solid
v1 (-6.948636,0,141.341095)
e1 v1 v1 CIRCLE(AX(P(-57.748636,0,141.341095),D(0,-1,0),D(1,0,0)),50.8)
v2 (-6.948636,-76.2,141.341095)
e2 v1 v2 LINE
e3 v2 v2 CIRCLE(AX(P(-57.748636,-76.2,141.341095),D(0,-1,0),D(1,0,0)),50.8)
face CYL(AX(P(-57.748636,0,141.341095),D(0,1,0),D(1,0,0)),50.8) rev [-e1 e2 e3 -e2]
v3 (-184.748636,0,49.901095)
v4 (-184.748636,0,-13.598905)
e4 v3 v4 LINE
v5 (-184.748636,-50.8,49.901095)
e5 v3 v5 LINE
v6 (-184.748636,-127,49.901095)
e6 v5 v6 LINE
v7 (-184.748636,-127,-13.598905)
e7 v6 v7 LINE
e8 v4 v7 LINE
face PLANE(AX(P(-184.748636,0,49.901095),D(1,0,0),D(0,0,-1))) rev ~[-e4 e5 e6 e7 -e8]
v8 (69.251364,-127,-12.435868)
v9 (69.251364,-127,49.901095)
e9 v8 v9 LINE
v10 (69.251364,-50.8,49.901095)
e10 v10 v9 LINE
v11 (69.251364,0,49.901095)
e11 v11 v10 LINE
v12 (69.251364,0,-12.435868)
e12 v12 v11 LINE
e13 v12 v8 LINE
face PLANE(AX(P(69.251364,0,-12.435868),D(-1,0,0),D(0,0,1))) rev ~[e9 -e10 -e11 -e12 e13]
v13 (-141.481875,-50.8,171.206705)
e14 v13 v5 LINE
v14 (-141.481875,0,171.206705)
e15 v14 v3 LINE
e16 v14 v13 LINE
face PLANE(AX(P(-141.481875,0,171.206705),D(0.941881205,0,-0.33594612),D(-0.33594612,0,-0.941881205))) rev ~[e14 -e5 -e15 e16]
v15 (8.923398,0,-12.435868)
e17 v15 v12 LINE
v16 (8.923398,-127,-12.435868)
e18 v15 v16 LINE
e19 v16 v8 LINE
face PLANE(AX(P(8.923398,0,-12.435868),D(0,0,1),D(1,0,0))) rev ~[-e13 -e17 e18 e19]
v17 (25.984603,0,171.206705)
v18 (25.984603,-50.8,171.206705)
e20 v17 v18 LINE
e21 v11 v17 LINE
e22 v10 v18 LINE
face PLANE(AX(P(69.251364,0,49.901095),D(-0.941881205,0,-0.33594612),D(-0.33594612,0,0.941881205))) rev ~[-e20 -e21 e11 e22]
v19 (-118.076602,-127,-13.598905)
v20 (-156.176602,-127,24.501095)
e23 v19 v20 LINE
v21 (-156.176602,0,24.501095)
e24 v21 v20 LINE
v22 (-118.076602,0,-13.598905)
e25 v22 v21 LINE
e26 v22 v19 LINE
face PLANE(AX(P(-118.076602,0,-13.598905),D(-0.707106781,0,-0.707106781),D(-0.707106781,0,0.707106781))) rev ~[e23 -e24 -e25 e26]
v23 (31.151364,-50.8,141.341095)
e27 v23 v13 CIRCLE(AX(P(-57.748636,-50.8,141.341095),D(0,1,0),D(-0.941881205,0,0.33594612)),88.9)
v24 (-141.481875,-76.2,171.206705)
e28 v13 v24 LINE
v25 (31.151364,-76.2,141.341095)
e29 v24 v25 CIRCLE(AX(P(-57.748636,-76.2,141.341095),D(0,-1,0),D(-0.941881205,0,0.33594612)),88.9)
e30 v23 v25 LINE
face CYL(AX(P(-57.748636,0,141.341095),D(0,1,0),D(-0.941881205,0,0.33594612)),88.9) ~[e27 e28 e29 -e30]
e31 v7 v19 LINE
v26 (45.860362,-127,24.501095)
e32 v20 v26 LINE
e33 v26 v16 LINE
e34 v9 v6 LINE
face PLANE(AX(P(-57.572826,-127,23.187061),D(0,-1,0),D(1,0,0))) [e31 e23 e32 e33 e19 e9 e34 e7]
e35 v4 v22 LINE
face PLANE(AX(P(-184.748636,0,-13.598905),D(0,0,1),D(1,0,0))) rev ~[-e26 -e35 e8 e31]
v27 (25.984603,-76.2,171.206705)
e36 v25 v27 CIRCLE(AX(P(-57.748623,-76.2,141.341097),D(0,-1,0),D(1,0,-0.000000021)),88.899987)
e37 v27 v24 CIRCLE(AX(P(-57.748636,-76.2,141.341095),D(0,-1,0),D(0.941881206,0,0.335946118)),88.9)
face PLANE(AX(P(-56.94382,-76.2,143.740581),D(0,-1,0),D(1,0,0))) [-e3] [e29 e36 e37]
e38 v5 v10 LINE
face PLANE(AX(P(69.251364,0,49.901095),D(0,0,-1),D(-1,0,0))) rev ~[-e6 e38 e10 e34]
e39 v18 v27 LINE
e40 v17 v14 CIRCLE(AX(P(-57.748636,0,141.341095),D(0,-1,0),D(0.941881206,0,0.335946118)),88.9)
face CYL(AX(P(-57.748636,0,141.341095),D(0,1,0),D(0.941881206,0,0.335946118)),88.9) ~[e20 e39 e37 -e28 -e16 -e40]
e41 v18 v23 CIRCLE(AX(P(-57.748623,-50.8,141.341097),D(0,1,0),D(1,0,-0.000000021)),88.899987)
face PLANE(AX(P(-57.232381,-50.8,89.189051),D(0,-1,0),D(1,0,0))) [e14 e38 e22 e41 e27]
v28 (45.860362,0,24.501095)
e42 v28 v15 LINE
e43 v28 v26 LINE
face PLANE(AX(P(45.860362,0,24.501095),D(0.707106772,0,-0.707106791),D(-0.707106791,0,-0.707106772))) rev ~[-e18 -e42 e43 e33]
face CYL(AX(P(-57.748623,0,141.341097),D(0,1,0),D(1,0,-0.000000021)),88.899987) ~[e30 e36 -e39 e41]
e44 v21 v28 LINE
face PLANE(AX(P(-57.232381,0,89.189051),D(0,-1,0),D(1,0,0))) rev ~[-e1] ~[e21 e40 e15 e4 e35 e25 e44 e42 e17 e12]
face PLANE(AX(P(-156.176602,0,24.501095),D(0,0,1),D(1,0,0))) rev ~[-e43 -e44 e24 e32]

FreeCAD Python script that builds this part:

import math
import FreeCAD as App
import Part
import Sketcher

V = App.Vector
Q = App.Units.Quantity

doc = App.newDocument("Part")
body = doc.addObject("PartDesign::Body", "Body")

# Sketch on XZ plane
sketch1 = body.newObject("Sketcher::SketchObject", "Sketch")
sketch1.AttachmentSupport = (doc.getObject("XZ_Plane"), [""])
sketch1.MapMode = "FlatFace"
sketch1.addGeometry([
    Part.LineSegment(V(9, -12, 0), V(69, -12, 0)),  # 0
    Part.LineSegment(V(69, -12, 0), V(69, 50, 0)),  # 1
    Part.LineSegment(V(69, 50, 0), V(-185, 50, 0)),  # 2
    Part.LineSegment(V(-185, 50, 0), V(-185, -14, 0)),  # 3
    Part.LineSegment(V(-185, -14, 0), V(-118, -14, 0)),  # 4
    Part.LineSegment(V(-118, -14, 0), V(-156, 25, 0)),  # 5
    Part.LineSegment(V(-156, 25, 0), V(46, 25, 0)),  # 6
    Part.LineSegment(V(46, 25, 0), V(9, -12, 0)),  # 7
], False)
sketch1.addConstraint([
    Sketcher.Constraint("Coincident", 0, 2, 1, 1),
    Sketcher.Constraint("Coincident", 1, 2, 2, 1),
    Sketcher.Constraint("Coincident", 2, 2, 3, 1),
    Sketcher.Constraint("Coincident", 3, 2, 4, 1),
    Sketcher.Constraint("Coincident", 4, 2, 5, 1),
    Sketcher.Constraint("Coincident", 5, 2, 6, 1),
    Sketcher.Constraint("Coincident", 6, 2, 7, 1),
    Sketcher.Constraint("Coincident", 7, 2, 0, 1),
    Sketcher.Constraint("Horizontal", 0),
    Sketcher.Constraint("Vertical", 1),
    Sketcher.Constraint("Horizontal", 2),
    Sketcher.Constraint("Vertical", 3),
    Sketcher.Constraint("Horizontal", 4),
    Sketcher.Constraint("Horizontal", 6),
    Sketcher.Constraint("Perpendicular", 5, 7),
    Sketcher.Constraint("DistanceX", 2, 2, 2, 1, Q("10 in")),
    Sketcher.Constraint("DistanceY", 3, 2, 3, 1, Q("2.5 in")),
    Sketcher.Constraint("Angle", 5, Q("135 deg")),
    Sketcher.Constraint("DistanceY", 5, 2, 2, 2, Q("1 in")),
    Sketcher.Constraint("DistanceX", 4, 2, 7, 2, Q("5 in")),
    Sketcher.Constraint("DistanceX", 4, 2, -1, 1, Q("118.076602 mm")),
    Sketcher.Constraint("DistanceX", 6, 2, 1, 2, Q("23.391002 mm")),
    Sketcher.Constraint("DistanceX", 0, 1, 0, 2, Q("60.327966 mm")),
    Sketcher.Constraint("DistanceY", 0, 2, -1, 1, Q("12.435868 mm")),
])
pad1 = body.newObject("PartDesign::Pad", "Pad")
pad1.Profile = sketch1
pad1.Length = Q("5 in")

# Sketch on XZ plane
sketch2 = body.newObject("Sketcher::SketchObject", "Sketch001")
sketch2.AttachmentSupport = (doc.getObject("XZ_Plane"), [""])
sketch2.MapMode = "FlatFace"
sketch2.addGeometry([
    Part.LineSegment(V(-185, 50, 0), V(69, 50, 0)),  # 0
    Part.LineSegment(V(69, 50, 0), V(26, 171, 0)),  # 1
    Part.ArcOfCircle(Part.Circle(V(-58, 141, 0), V(0, 0, 1), 89), math.radians(20), math.radians(160)),  # 2
    Part.LineSegment(V(-141, 171, 0), V(-185, 50, 0)),  # 3
    Part.Circle(V(-58, 141, 0), V(0, 0, 1), 51),  # 4
], False)
sketch2.addConstraint([
    Sketcher.Constraint("Coincident", 0, 2, 1, 1),
    Sketcher.Constraint("Tangent", 1, 2, 2, 1),
    Sketcher.Constraint("Tangent", 2, 2, 3, 1),
    Sketcher.Constraint("Coincident", 3, 2, 0, 1),
    Sketcher.Constraint("Horizontal", 0),
    Sketcher.Constraint("Coincident", 4, 3, 2, 3),
    Sketcher.Constraint("Horizontal", 1, 2, 2, 2),
    Sketcher.Constraint("Diameter", 4, Q("4 in")),
    Sketcher.Constraint("Radius", 2, Q("3.5 in")),
    Sketcher.Constraint("DistanceX", 0, 1, 0, 2, Q("10 in")),
    Sketcher.Constraint("DistanceY", 0, 2, 4, 3, Q("3.6 in")),
    Sketcher.Constraint("DistanceX", 2, 3, -1, 1, Q("57.748636 mm")),
    Sketcher.Constraint("DistanceY", -1, 1, 2, 3, Q("141.341095 mm")),
])
pad2 = body.newObject("PartDesign::Pad", "Pad001")
pad2.Profile = sketch2
pad2.Length = Q("2 in")

# Sketch on XZ plane
sketch3 = body.newObject("Sketcher::SketchObject", "Sketch002")
sketch3.AttachmentSupport = (doc.getObject("XZ_Plane"), [""])
sketch3.MapMode = "FlatFace"
sketch3.addGeometry([
    Part.ArcOfCircle(Part.Circle(V(-58, 141, 0), V(0, 0, 1), 89), math.radians(0), math.radians(19.63)),
    Part.ArcOfCircle(Part.Circle(V(-58, 141, 0), V(0, 0, 1), 89), math.radians(20), math.radians(160)),
    Part.ArcOfCircle(Part.Circle(V(-58, 141, 0), V(0, 0, 1), 89), math.radians(160), math.radians(360)),
    Part.Circle(V(-58, 141, 0), V(0, 0, 1), 51),
], False)
sketch3.addConstraint([
    Sketcher.Constraint("Tangent", 0, 2, 1, 1),
    Sketcher.Constraint("Tangent", 1, 2, 2, 1),
    Sketcher.Constraint("Tangent", 2, 2, 0, 1),
    Sketcher.Constraint("Coincident", 3, 3, 1, 3),
    Sketcher.Constraint("Horizontal", 0, 2, 1, 2),
    Sketcher.Constraint("Horizontal", 3, 3, 2, 2),
    Sketcher.Constraint("Diameter", 3, Q("4 in")),
    Sketcher.Constraint("Radius", 1, Q("3.5 in")),
    Sketcher.Constraint("DistanceY", 0, 3, 0, 2, Q("29.865608 mm")),
    Sketcher.Constraint("DistanceX", 0, 3, -1, 1, Q("57.748623 mm")),
    Sketcher.Constraint("DistanceY", -1, 1, 0, 3, Q("141.341097 mm")),
])
pad3 = body.newObject("PartDesign::Pad", "Pad002")
pad3.Profile = sketch3
pad3.Length = Q("3 in")

doc.recompute()
